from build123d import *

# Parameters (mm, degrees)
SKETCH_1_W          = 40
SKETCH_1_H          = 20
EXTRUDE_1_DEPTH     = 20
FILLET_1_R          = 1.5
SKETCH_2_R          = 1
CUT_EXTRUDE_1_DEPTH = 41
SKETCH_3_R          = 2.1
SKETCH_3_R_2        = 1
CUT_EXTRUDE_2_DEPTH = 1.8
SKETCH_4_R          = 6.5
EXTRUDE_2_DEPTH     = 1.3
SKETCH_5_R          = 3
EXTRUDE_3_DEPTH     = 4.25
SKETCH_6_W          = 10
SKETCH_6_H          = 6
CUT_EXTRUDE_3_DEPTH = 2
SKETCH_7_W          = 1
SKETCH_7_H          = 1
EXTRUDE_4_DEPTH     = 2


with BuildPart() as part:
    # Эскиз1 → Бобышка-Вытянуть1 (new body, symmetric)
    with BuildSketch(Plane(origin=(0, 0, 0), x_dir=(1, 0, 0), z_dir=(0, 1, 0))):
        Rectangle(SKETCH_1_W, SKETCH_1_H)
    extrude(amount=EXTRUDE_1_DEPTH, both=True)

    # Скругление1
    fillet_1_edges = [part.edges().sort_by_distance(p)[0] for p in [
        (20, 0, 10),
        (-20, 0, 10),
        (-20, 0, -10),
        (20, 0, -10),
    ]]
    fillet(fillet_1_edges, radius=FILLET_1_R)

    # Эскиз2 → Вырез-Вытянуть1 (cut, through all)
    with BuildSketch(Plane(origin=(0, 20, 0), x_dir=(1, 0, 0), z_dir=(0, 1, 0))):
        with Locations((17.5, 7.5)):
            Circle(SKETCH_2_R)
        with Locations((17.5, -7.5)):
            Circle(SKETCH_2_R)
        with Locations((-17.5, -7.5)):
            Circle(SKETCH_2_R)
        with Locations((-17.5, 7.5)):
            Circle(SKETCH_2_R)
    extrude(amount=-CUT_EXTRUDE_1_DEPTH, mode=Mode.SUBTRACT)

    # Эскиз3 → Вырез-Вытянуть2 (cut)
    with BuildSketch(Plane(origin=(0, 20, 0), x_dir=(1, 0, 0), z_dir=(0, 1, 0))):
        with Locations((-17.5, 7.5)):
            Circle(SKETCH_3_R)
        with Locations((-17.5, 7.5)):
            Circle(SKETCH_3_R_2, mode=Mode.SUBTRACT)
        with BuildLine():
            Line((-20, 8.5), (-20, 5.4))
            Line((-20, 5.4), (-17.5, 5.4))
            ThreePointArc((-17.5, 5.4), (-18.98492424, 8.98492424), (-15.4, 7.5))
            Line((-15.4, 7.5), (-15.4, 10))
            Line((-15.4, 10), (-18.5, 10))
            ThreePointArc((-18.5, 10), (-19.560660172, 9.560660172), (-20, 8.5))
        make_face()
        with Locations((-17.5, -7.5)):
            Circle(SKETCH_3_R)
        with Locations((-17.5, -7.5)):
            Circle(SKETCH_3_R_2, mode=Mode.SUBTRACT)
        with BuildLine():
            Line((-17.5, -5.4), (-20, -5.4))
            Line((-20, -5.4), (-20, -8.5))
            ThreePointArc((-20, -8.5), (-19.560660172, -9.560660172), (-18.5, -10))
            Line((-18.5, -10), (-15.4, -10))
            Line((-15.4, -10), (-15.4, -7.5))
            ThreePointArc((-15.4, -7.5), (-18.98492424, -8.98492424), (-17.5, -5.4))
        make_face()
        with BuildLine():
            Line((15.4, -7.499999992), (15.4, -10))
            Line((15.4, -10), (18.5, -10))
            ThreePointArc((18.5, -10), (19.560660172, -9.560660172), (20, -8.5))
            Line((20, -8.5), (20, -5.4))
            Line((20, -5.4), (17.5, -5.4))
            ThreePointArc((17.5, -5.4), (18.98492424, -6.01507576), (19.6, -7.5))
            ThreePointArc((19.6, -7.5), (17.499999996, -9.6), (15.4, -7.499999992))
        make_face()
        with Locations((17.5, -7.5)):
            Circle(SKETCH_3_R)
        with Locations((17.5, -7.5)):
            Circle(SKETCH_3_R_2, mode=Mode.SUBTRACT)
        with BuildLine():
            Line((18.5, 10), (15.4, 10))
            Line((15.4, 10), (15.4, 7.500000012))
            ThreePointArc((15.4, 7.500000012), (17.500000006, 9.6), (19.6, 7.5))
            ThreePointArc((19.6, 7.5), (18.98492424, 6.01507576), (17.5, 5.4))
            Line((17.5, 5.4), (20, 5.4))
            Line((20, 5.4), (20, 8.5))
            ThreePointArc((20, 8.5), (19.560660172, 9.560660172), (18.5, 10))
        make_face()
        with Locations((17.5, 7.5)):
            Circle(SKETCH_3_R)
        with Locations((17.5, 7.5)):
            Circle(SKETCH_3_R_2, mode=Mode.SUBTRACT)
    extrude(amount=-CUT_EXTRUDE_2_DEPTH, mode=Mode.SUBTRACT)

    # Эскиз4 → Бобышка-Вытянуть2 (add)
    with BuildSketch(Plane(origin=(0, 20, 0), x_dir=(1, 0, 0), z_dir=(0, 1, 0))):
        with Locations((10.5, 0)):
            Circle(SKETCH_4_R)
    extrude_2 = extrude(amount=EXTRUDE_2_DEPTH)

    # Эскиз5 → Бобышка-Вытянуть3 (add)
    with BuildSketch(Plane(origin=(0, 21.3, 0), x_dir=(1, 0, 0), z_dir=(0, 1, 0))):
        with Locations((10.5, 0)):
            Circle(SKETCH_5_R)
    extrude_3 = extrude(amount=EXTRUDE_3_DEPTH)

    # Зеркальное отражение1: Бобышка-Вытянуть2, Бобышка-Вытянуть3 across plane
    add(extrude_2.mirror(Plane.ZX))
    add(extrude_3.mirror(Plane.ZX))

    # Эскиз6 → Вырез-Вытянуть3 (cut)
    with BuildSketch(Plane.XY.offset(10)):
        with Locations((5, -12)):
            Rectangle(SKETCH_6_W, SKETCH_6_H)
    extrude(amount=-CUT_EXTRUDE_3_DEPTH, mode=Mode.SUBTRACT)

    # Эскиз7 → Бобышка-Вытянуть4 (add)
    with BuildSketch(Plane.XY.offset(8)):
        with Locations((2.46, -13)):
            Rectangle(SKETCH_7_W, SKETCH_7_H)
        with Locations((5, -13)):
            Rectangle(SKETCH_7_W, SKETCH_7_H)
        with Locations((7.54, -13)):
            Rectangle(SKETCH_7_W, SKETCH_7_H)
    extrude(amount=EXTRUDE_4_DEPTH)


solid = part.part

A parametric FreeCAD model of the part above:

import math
import FreeCAD as App
import Part
import Sketcher
from FreeCAD import Vector
Q = App.Units.Quantity


def edges_at(feature, points):
    """Names of the edges that pass closest to the given points."""
    edges = feature.Shape.Edges
    near = lambda p: min(range(len(edges)), key=lambda i: edges[i].distToShape(Part.Vertex(*p))[0])
    return sorted({f"Edge{near(p) + 1}" for p in points})

doc = App.newDocument("Part")
body = doc.addObject("PartDesign::Body", "Body")

sketch1 = body.newObject("Sketcher::SketchObject", "Sketch")
sketch1.AttachmentSupport = (doc.getObject("XZ_Plane"), [""])
sketch1.MapMode = "FlatFace"
sketch1.addGeometry([
    Part.LineSegment(Vector(-20, -10, 0), Vector(-20, 10, 0)),
    Part.LineSegment(Vector(-20, 10, 0), Vector(20, 10, 0)),
    Part.LineSegment(Vector(20, 10, 0), Vector(20, -10, 0)),
    Part.LineSegment(Vector(20, -10, 0), Vector(-20, -10, 0)),
], False)
sketch1.addConstraint([
    Sketcher.Constraint("Coincident", 0, 2, 1, 1),
    Sketcher.Constraint("Coincident", 1, 2, 2, 1),
    Sketcher.Constraint("Coincident", 2, 2, 3, 1),
    Sketcher.Constraint("Coincident", 3, 2, 0, 1),
    Sketcher.Constraint("Vertical", 0),
    Sketcher.Constraint("Horizontal", 1),
    Sketcher.Constraint("Vertical", 2),
    Sketcher.Constraint("Horizontal", 3),
    Sketcher.Constraint("Symmetric", 0, 2, 2, 2, -1, 1),
    Sketcher.Constraint("DistanceX", 1, 1, 1, 2, Q("40 mm")),
    Sketcher.Constraint("DistanceY", 0, 1, 0, 2, Q("20 mm")),
])
pad1 = body.newObject("PartDesign::Pad", "Pad")
pad1.Profile = sketch1
pad1.Length = 40
pad1.Midplane = True
doc.recompute()

fillet = body.newObject("PartDesign::Fillet", "Fillet")
fillet.Base = (pad1, edges_at(pad1, [
    (20, 0, 10),
    (-20, 0, 10),
    (-20, 0, -10),
    (20, 0, -10),
]))
fillet.Radius = 1.5

sketch2 = body.newObject("Sketcher::SketchObject", "Sketch001")
sketch2.AttachmentSupport = (doc.getObject("XZ_Plane"), [""])
sketch2.MapMode = "FlatFace"
sketch2.AttachmentOffset = App.Placement(Vector(0, 0, -20), App.Rotation())
sketch2.addGeometry([
    Part.Circle(Vector(17.5, -7.5, 0), Vector(0, 0, 1), 1),
    Part.Circle(Vector(17.5, 7.5, 0), Vector(0, 0, 1), 1),
    Part.Circle(Vector(-17.5, 7.5, 0), Vector(0, 0, 1), 1),
    Part.Circle(Vector(-17.5, -7.5, 0), Vector(0, 0, 1), 1),
], False)
sketch2.addConstraint([
    Sketcher.Constraint("Equal", 0, 1),
    Sketcher.Constraint("Equal", 1, 2),
    Sketcher.Constraint("Equal", 2, 3),
    Sketcher.Constraint("Symmetric", 0, 3, 2, 3, -1, 1),
    Sketcher.Constraint("Symmetric", 1, 3, 3, 3, -1, 1),
    Sketcher.Constraint("Symmetric", 1, 3, 2, 3, -2),
    Sketcher.Constraint("Diameter", 0, Q("2 mm")),
    Sketcher.Constraint("DistanceY", 0, 3, 1, 3, Q("15 mm")),
    Sketcher.Constraint("DistanceX", 2, 3, 1, 3, Q("35 mm")),
])
pocket1 = body.newObject("PartDesign::Pocket", "Pocket")
pocket1.Profile = sketch2
pocket1.Type = "ThroughAll"
pocket1.Reversed = True

sketch3 = body.newObject("Sketcher::SketchObject", "Sketch002")
sketch3.AttachmentSupport = (doc.getObject("XZ_Plane"), [""])
sketch3.MapMode = "FlatFace"
sketch3.AttachmentOffset = App.Placement(Vector(0, 0, -20), App.Rotation())
sketch3.addGeometry([
    Part.ArcOfCircle(Part.Circle(Vector(-17.5, -7.5, 0), Vector(0, 0, 1), 2.1), math.radians(0), math.radians(90)),
    Part.LineSegment(Vector(-15.4, -7.5, 0), Vector(-15.4, -10, 0)),
    Part.LineSegment(Vector(-15.4, -10, 0), Vector(-18.5, -10, 0)),
    Part.ArcOfCircle(Part.Circle(Vector(-18.5, -8.5, 0), Vector(0, 0, 1), 1.5), math.radians(180), math.radians(270)),
    Part.LineSegment(Vector(-20, -8.5, 0), Vector(-20, -5.4, 0)),
    Part.LineSegment(Vector(-20, -5.4, 0), Vector(-17.5, -5.4, 0)),
    Part.Circle(Vector(-17.5, -7.5, 0), Vector(0, 0, 1), 1),
    Part.ArcOfCircle(Part.Circle(Vector(-17.5, 7.5, 0), Vector(0, 0, 1), 2.1), math.radians(-90), math.radians(0)),
    Part.LineSegment(Vector(-17.5, 5.4, 0), Vector(-20, 5.4, 0)),
    Part.LineSegment(Vector(-20, 5.4, 0), Vector(-20, 8.5, 0)),
    Part.ArcOfCircle(Part.Circle(Vector(-18.5, 8.5, 0), Vector(0, 0, 1), 1.5), math.radians(90), math.radians(180)),
    Part.LineSegment(Vector(-18.5, 10, 0), Vector(-15.4, 10, 0)),
    Part.LineSegment(Vector(-15.4, 10, 0), Vector(-15.4, 7.5, 0)),
    Part.Circle(Vector(-17.5, 7.5, 0), Vector(0, 0, 1), 1),
    Part.LineSegment(Vector(15.4, 7.5, 0), Vector(15.4, 10, 0)),
    Part.LineSegment(Vector(15.4, 10, 0), Vector(18.5, 10, 0)),
    Part.ArcOfCircle(Part.Circle(Vector(18.5, 8.5, 0), Vector(0, 0, 1), 1.5), math.radians(0), math.radians(90)),
    Part.LineSegment(Vector(20, 8.5, 0), Vector(20, 5.4, 0)),
    Part.LineSegment(Vector(20, 5.4, 0), Vector(17.5, 5.4, 0)),
    Part.ArcOfCircle(Part.Circle(Vector(17.5, 7.5, 0), Vector(0, 0, 1), 2.1), math.radians(-180), math.radians(-90)),
    Part.Circle(Vector(17.5, 7.5, 0), Vector(0, 0, 1), 1),
    Part.LineSegment(Vector(18.5, -10, 0), Vector(15.4, -10, 0)),
    Part.LineSegment(Vector(15.4, -10, 0), Vector(15.4, -7.5, 0)),
    Part.ArcOfCircle(Part.Circle(Vector(17.5, -7.5, 0), Vector(0, 0, 1), 2.1), math.radians(90), math.radians(180)),
    Part.LineSegment(Vector(17.5, -5.4, 0), Vector(20, -5.4, 0)),
    Part.LineSegment(Vector(20, -5.4, 0), Vector(20, -8.5, 0)),
    Part.ArcOfCircle(Part.Circle(Vector(18.5, -8.5, 0), Vector(0, 0, 1), 1.5), math.radians(-90), math.radians(0)),
    Part.Circle(Vector(17.5, -7.5, 0), Vector(0, 0, 1), 1),
], False)
sketch3.addConstraint([
    Sketcher.Constraint("Tangent", 0, 1, 1, 1),
    Sketcher.Constraint("Coincident", 1, 2, 2, 1),
    Sketcher.Constraint("Tangent", 2, 2, 3, 2),
    Sketcher.Constraint("Tangent", 3, 1, 4, 1),
    Sketcher.Constraint("Coincident", 4, 2, 5, 1),
    Sketcher.Constraint("Tangent", 5, 2, 0, 2),
    Sketcher.Constraint("Tangent", 7, 1, 8, 1),
    Sketcher.Constraint("Coincident", 8, 2, 9, 1),
    Sketcher.Constraint("Tangent", 9, 2, 10, 2),
    Sketcher.Constraint("Tangent", 10, 1, 11, 1),
    Sketcher.Constraint("Coincident", 11, 2, 12, 1),
    Sketcher.Constraint("Tangent", 12, 2, 7, 2),
    Sketcher.Constraint("Coincident", 14, 2, 15, 1),
    Sketcher.Constraint("Tangent", 15, 2, 16, 2),
    Sketcher.Constraint("Tangent", 16, 1, 17, 1),
    Sketcher.Constraint("Coincident", 17, 2, 18, 1),
    Sketcher.Constraint("Tangent", 18, 2, 19, 2),
    Sketcher.Constraint("Tangent", 19, 1, 14, 1),
    Sketcher.Constraint("Coincident", 21, 2, 22, 1),
    Sketcher.Constraint("Tangent", 22, 2, 23, 2),
    Sketcher.Constraint("Tangent", 23, 1, 24, 1),
    Sketcher.Constraint("Coincident", 24, 2, 25, 1),
    Sketcher.Constraint("Tangent", 25, 2, 26, 2),
    Sketcher.Constraint("Tangent", 26, 1, 21, 1),
    Sketcher.Constraint("Vertical", 1),
    Sketcher.Constraint("Horizontal", 2),
    Sketcher.Constraint("Vertical", 4),
    Sketcher.Constraint("Horizontal", 5),
    Sketcher.Constraint("Horizontal", 8),
    Sketcher.Constraint("Vertical", 9),
    Sketcher.Constraint("Horizontal", 11),
    Sketcher.Constraint("Vertical", 12),
    Sketcher.Constraint("Vertical", 14),
    Sketcher.Constraint("Horizontal", 15),
    Sketcher.Constraint("Vertical", 17),
    Sketcher.Constraint("Horizontal", 18),
    Sketcher.Constraint("Horizontal", 21),
    Sketcher.Constraint("Vertical", 22),
    Sketcher.Constraint("Horizontal", 24),
    Sketcher.Constraint("Vertical", 25),
    Sketcher.Constraint("Coincident", 6, 3, 0, 3),
    Sketcher.Constraint("Coincident", 13, 3, 7, 3),
    Sketcher.Constraint("Coincident", 20, 3, 19, 3),
    Sketcher.Constraint("Coincident", 27, 3, 23, 3),
    Sketcher.Constraint("Equal", 0, 7),
    Sketcher.Constraint("Equal", 3, 10),
    Sketcher.Constraint("Equal", 6, 13),
    Sketcher.Constraint("Equal", 10, 16),
    Sketcher.Constraint("Equal", 7, 19),
    Sketcher.Constraint("Equal", 13, 20),
    Sketcher.Constraint("Equal", 19, 23),
    Sketcher.Constraint("Equal", 16, 26),
    Sketcher.Constraint("Equal", 20, 27),
    Sketcher.Constraint("Symmetric", 3, 3, 16, 3, -1, 1),
    Sketcher.Constraint("Symmetric", 0, 3, 19, 3, -1, 1),
    Sketcher.Constraint("Symmetric", 7, 3, 23, 3, -1, 1),
    Sketcher.Constraint("Symmetric", 10, 3, 26, 3, -1, 1),
    Sketcher.Constraint("Symmetric", 10, 3, 16, 3, -2),
    Sketcher.Constraint("Symmetric", 7, 3, 19, 3, -2),
    Sketcher.Constraint("Equal", 24, 1),
    Sketcher.Constraint("Diameter", 6, Q("2 mm")),
    Sketcher.Constraint("Radius", 0, Q("2.1 mm")),
    Sketcher.Constraint("Radius", 3, Q("1.5 mm")),
    Sketcher.Constraint("DistanceX", 2, 2, 2, 1, Q("3.1 mm")),
    Sketcher.Constraint("DistanceY", 1, 2, -1, 1, Q("10 mm")),
    Sketcher.Constraint("DistanceX", 3, 1, -1, 1, Q("20 mm")),
])
pocket2 = body.newObject("PartDesign::Pocket", "Pocket001")
pocket2.Profile = sketch3
pocket2.Length = 1.8
pocket2.Reversed = True

sketch4 = body.newObject("Sketcher::SketchObject", "Sketch003")
sketch4.AttachmentSupport = (doc.getObject("XZ_Plane"), [""])
sketch4.MapMode = "FlatFace"
sketch4.AttachmentOffset = App.Placement(Vector(0, 0, -20), App.Rotation())
sketch4.addGeometry(Part.Circle(Vector(10, 0, 0), Vector(0, 0, 1), 6), False)
sketch4.addConstraint([
    Sketcher.Constraint("PointOnObject", 0, 3, -1),
    Sketcher.Constraint("Diameter", 0, Q("13 mm")),
    Sketcher.Constraint("DistanceX", -1, 1, 0, 3, Q("10.5 mm")),
])
pad2 = body.newObject("PartDesign::Pad", "Pad001")
pad2.Profile = sketch4
pad2.Length = 1.3
pad2.Reversed = True

sketch5 = body.newObject("Sketcher::SketchObject", "Sketch004")
sketch5.AttachmentSupport = (doc.getObject("XZ_Plane"), [""])
sketch5.MapMode = "FlatFace"
sketch5.AttachmentOffset = App.Placement(Vector(0, 0, -21.3), App.Rotation())
sketch5.addGeometry(Part.Circle(Vector(10.5, 0, 0), Vector(0, 0, 1), 3), False)
sketch5.addConstraint([
    Sketcher.Constraint("PointOnObject", 0, 3, -1),
    Sketcher.Constraint("Diameter", 0, Q("6 mm")),
    Sketcher.Constraint("DistanceX", -1, 1, 0, 3, Q("10.5 mm")),
])
pad3 = body.newObject("PartDesign::Pad", "Pad002")
pad3.Profile = sketch5
pad3.Length = 4.25
pad3.Reversed = True
doc.recompute()

mirrored = body.newObject("PartDesign::Mirrored", "Mirrored")
mirrored.Originals = [pad2, pad3]
mirrored.MirrorPlane = (doc.getObject("XZ_Plane"), [""])
body.Tip = mirrored

sketch6 = body.newObject("Sketcher::SketchObject", "Sketch005")
sketch6.AttachmentSupport = (doc.getObject("XY_Plane"), [""])
sketch6.MapMode = "FlatFace"
sketch6.AttachmentOffset = App.Placement(Vector(0, 0, 10), App.Rotation())
sketch6.addGeometry([
    Part.LineSegment(Vector(0, -9, 0), Vector(0, -15, 0)),
    Part.LineSegment(Vector(0, -15, 0), Vector(10, -15, 0)),
    Part.LineSegment(Vector(10, -15, 0), Vector(10, -9, 0)),
    Part.LineSegment(Vector(10, -9, 0), Vector(0, -9, 0)),
], False)
sketch6.addConstraint([
    Sketcher.Constraint("Coincident", 0, 2, 1, 1),
    Sketcher.Constraint("Coincident", 1, 2, 2, 1),
    Sketcher.Constraint("Coincident", 2, 2, 3, 1),
    Sketcher.Constraint("Coincident", 3, 2, 0, 1),
    Sketcher.Constraint("Vertical", 0),
    Sketcher.Constraint("Horizontal", 1),
    Sketcher.Constraint("Vertical", 2),
    Sketcher.Constraint("Horizontal", 3),
    Sketcher.Constraint("PointOnObject", 0, 2, -2),
    Sketcher.Constraint("DistanceX", 1, 1, 1, 2, Q("10 mm")),
    Sketcher.Constraint("DistanceY", 0, 2, 0, 1, Q("6 mm")),
    Sketcher.Constraint("DistanceY", 0, 2, -1, 1, Q("15 mm")),
])
pocket3 = body.newObject("PartDesign::Pocket", "Pocket002")
pocket3.Profile = sketch6
pocket3.Length = 2

sketch7 = body.newObject("Sketcher::SketchObject", "Sketch006")
sketch7.AttachmentSupport = (doc.getObject("XY_Plane"), [""])
sketch7.MapMode = "FlatFace"
sketch7.AttachmentOffset = App.Placement(Vector(0, 0, 8), App.Rotation())
sketch7.addGeometry([
    Part.LineSegment(Vector(2, -12.5, 0), Vector(2, -13.5, 0)),
    Part.LineSegment(Vector(2, -13.5, 0), Vector(3, -13.5, 0)),
    Part.LineSegment(Vector(3, -13.5, 0), Vector(3, -12.5, 0)),
    Part.LineSegment(Vector(3, -12.5, 0), Vector(2, -12.5, 0)),
    Part.LineSegment(Vector(4.5, -12.5, 0), Vector(4.5, -13.5, 0)),
    Part.LineSegment(Vector(4.5, -13.5, 0), Vector(5.5, -13.5, 0)),
    Part.LineSegment(Vector(5.5, -13.5, 0), Vector(5.5, -12.5, 0)),
    Part.LineSegment(Vector(5.5, -12.5, 0), Vector(4.5, -12.5, 0)),
    Part.LineSegment(Vector(7, -12.5, 0), Vector(7, -13.5, 0)),
    Part.LineSegment(Vector(7, -13.5, 0), Vector(8, -13.5, 0)),
    Part.LineSegment(Vector(8, -13.5, 0), Vector(8, -12.5, 0)),
    Part.LineSegment(Vector(8, -12.5, 0), Vector(7, -12.5, 0)),
], False)
sketch7.addConstraint([
    Sketcher.Constraint("Coincident", 0, 2, 1, 1),
    Sketcher.Constraint("Coincident", 1, 2, 2, 1),
    Sketcher.Constraint("Coincident", 2, 2, 3, 1),
    Sketcher.Constraint("Coincident", 3, 2, 0, 1),
    Sketcher.Constraint("Coincident", 4, 2, 5, 1),
    Sketcher.Constraint("Coincident", 5, 2, 6, 1),
    Sketcher.Constraint("Coincident", 6, 2, 7, 1),
    Sketcher.Constraint("Coincident", 7, 2, 4, 1),
    Sketcher.Constraint("Coincident", 8, 2, 9, 1),
    Sketcher.Constraint("Coincident", 9, 2, 10, 1),
    Sketcher.Constraint("Coincident", 10, 2, 11, 1),
    Sketcher.Constraint("Coincident", 11, 2, 8, 1),
    Sketcher.Constraint("Vertical", 0),
    Sketcher.Constraint("Horizontal", 1),
    Sketcher.Constraint("Vertical", 2),
    Sketcher.Constraint("Horizontal", 3),
    Sketcher.Constraint("Vertical", 4),
    Sketcher.Constraint("Horizontal", 5),
    Sketcher.Constraint("Vertical", 6),
    Sketcher.Constraint("Horizontal", 7),
    Sketcher.Constraint("Vertical", 8),
    Sketcher.Constraint("Horizontal", 9),
    Sketcher.Constraint("Vertical", 10),
    Sketcher.Constraint("Horizontal", 11),
    Sketcher.Constraint("Horizontal", 1, 2, 4, 2),
    Sketcher.Constraint("Horizontal", 3, 2, 6, 2),
    Sketcher.Constraint("Horizontal", 5, 2, 8, 2),
    Sketcher.Constraint("Horizontal", 7, 2, 10, 2),
    Sketcher.Constraint("Equal", 3, 5),
    Sketcher.Constraint("Equal", 7, 9),
    Sketcher.Constraint("Equal", 11, 0),
    Sketcher.Constraint("DistanceX", 1, 1, 1, 2, Q("1 mm")),
    Sketcher.Constraint("DistanceY", 0, 2, -1, 1, Q("13.5 mm")),
    Sketcher.Constraint("DistanceX", -1, 1, 4, 2, Q("4.5 mm")),
    Sketcher.Constraint("DistanceX", -1, 1, 0, 2, Q("1.96 mm")),
    Sketcher.Constraint("DistanceX", -1, 1, 8, 2, Q("7.04 mm")),
])
pad4 = body.newObject("PartDesign::Pad", "Pad003")
pad4.Profile = sketch7
pad4.Length = 2

doc.recompute()
